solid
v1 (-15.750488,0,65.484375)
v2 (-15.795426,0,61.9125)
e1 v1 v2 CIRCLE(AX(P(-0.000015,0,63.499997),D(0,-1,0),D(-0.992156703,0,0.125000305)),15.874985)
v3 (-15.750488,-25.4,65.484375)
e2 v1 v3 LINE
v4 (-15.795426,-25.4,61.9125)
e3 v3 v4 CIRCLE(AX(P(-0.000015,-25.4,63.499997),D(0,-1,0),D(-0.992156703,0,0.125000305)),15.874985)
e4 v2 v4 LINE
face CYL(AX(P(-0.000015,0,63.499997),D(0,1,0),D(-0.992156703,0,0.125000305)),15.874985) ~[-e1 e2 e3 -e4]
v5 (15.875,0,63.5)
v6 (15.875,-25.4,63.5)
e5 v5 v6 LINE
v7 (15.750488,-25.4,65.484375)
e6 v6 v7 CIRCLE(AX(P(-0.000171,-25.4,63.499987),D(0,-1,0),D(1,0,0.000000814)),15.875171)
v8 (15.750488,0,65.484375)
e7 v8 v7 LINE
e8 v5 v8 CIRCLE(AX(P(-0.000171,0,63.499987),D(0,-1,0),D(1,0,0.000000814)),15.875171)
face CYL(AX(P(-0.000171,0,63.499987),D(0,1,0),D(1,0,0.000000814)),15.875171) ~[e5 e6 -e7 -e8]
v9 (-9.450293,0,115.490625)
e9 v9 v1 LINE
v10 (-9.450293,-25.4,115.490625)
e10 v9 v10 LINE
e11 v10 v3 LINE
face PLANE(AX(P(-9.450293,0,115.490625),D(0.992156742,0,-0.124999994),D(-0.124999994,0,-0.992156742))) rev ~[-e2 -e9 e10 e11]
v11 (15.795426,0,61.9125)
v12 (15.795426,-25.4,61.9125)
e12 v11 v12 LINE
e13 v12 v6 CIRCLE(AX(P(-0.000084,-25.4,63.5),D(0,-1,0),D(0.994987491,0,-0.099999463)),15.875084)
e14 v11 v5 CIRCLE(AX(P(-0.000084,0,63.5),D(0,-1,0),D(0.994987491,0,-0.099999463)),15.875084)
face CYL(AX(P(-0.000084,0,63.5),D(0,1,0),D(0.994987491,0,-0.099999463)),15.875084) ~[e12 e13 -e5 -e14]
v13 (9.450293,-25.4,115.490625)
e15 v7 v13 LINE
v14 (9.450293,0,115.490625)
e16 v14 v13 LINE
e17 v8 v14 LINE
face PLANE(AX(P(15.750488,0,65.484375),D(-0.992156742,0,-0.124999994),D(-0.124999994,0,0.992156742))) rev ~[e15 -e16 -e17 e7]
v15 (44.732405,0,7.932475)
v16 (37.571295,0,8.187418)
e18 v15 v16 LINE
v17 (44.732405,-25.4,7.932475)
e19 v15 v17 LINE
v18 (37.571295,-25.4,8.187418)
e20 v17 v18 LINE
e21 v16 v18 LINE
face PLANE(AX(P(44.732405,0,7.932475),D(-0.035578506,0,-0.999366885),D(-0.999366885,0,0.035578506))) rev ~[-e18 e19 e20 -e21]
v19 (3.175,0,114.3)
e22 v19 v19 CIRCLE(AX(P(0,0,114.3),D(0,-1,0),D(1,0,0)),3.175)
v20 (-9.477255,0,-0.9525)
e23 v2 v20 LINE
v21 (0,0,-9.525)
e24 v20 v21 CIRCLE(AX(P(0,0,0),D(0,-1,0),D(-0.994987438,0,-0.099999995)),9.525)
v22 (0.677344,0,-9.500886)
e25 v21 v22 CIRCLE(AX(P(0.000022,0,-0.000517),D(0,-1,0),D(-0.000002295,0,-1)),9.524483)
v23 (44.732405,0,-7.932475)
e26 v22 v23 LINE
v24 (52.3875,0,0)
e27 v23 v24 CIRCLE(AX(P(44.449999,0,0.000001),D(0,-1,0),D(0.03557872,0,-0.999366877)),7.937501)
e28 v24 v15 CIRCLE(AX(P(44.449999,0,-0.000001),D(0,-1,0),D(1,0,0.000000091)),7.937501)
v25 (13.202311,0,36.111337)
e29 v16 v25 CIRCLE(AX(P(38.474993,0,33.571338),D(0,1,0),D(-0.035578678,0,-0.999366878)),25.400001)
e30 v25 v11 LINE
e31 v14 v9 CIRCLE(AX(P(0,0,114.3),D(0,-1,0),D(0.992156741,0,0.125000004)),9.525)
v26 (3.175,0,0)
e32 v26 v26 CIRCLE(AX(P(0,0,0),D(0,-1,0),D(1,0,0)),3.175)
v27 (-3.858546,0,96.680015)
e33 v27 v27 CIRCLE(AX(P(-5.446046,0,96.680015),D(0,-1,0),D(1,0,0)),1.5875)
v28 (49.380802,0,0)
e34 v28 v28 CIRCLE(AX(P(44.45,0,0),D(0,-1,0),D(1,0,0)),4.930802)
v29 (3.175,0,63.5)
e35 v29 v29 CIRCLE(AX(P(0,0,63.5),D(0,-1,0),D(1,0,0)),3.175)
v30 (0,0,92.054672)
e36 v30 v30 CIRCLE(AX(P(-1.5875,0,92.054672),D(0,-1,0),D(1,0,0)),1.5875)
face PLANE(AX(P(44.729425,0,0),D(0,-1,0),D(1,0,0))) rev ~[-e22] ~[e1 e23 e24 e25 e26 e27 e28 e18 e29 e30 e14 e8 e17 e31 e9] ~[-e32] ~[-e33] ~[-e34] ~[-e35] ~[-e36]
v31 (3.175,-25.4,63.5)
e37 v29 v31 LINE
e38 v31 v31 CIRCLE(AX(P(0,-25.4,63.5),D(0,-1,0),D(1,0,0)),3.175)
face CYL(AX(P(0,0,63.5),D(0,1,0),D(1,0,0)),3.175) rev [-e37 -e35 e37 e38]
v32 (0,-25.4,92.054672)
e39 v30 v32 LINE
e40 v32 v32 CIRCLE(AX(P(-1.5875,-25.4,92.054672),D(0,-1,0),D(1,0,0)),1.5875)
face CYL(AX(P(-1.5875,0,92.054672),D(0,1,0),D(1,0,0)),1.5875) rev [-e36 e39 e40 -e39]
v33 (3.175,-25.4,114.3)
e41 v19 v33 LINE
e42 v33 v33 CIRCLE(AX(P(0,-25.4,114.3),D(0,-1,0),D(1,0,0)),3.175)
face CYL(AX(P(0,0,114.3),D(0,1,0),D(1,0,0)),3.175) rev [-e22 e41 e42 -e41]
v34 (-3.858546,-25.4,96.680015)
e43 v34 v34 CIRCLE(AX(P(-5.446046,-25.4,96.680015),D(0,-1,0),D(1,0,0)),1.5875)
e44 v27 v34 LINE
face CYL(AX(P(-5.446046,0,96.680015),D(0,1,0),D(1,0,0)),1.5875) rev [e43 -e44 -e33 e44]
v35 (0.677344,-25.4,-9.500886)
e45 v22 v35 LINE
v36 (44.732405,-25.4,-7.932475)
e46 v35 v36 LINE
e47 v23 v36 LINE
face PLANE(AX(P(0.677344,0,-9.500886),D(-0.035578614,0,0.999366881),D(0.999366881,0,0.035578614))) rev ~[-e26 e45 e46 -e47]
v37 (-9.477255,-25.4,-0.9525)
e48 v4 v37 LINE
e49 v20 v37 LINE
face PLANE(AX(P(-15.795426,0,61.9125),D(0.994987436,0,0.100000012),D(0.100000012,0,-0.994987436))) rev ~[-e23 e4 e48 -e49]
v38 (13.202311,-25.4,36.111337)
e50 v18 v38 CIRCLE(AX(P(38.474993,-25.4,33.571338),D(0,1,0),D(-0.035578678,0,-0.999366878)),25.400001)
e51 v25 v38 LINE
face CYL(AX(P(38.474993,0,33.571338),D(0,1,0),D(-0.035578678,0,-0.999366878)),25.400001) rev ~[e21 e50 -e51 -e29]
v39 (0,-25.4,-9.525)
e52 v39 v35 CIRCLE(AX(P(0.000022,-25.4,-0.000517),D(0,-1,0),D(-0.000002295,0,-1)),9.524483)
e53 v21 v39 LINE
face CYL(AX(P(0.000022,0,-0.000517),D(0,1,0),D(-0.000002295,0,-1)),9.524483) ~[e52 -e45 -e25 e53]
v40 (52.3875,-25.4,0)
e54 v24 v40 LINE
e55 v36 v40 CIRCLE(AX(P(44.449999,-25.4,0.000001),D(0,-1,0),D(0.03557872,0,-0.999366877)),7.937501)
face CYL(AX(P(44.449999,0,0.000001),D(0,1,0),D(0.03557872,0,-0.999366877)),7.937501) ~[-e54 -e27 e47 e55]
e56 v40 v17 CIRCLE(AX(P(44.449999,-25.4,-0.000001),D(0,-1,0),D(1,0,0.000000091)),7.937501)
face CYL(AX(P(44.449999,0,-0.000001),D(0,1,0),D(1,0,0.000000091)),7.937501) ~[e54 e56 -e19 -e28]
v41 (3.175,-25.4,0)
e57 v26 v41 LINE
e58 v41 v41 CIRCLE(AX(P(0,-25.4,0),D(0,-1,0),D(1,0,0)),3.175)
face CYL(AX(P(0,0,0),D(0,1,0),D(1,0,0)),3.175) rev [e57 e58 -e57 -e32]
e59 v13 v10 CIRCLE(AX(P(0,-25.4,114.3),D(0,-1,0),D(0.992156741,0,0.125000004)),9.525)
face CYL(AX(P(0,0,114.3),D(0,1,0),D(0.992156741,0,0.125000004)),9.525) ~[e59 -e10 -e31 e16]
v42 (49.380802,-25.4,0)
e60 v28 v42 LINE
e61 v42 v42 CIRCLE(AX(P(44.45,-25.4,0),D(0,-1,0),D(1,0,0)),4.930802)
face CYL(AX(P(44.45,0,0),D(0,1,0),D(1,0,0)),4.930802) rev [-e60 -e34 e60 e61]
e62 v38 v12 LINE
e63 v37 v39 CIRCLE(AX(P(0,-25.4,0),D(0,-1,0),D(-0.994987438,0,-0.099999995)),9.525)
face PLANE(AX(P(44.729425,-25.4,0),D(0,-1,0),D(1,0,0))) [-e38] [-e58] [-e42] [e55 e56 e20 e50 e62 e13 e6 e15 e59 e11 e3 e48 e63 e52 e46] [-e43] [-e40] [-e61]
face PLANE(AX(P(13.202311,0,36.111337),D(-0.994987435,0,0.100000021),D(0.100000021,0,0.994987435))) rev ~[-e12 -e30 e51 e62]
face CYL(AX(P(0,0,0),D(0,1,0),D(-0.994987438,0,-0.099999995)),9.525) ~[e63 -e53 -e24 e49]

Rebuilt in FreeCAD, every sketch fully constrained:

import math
import FreeCAD as App
import Part
import Sketcher

V = App.Vector
Q = App.Units.Quantity

doc = App.newDocument("Part")
body = doc.addObject("PartDesign::Body", "Body")

sketch1 = body.newObject("Sketcher::SketchObject", "Sketch")
sketch1.AttachmentSupport = (doc.getObject("XZ_Plane"), [""])
sketch1.MapMode = "FlatFace"
sketch1.addGeometry(Part.ArcOfCircle(Part.Circle(V(44.449999, 0.000001, 0), V(0, 0, 1), 7.937501), math.radians(-87.961059), math.radians(-0.000005)), False)
sketch1.addGeometry(Part.ArcOfCircle(Part.Circle(V(44.449999, -0.000001, 0), V(0, 0, 1), 7.937501), math.radians(0.000005), math.radians(87.961059)), False)
sketch1.addGeometry(Part.LineSegment(V(44.732405, 7.932475, 0), V(37.571295, 8.187418, 0)), False)
sketch1.addGeometry(Part.ArcOfCircle(Part.Circle(V(38.474993, 33.571338, 0), V(0, 0, 1), 25.400001), math.radians(174.260832), math.radians(267.961062)), False)
sketch1.addGeometry(Part.LineSegment(V(13.202311, 36.111337, 0), V(15.795426, 61.9125, 0)), False)
sketch1.addGeometry(Part.ArcOfCircle(Part.Circle(V(-0.000084, 63.5, 0), V(0, 0, 1), 15.875084), math.radians(-5.73914), math.radians(0)), False)
sketch1.addGeometry(Part.ArcOfCircle(Part.Circle(V(-0.000171, 63.499987, 0), V(0, 0, 1), 15.875171), math.radians(0.000047), math.radians(7.180725)), False)
sketch1.addGeometry(Part.LineSegment(V(15.750488, 65.484375, 0), V(9.450293, 115.490625, 0)), False)
sketch1.addGeometry(Part.ArcOfCircle(Part.Circle(V(0, 114.3, 0), V(0, 0, 1), 9.525), math.radians(7.180756), math.radians(172.819244)), False)
sketch1.addGeometry(Part.LineSegment(V(-9.450293, 115.490625, 0), V(-15.750488, 65.484375, 0)), False)
sketch1.addGeometry(Part.ArcOfCircle(Part.Circle(V(-0.000015, 63.499997, 0), V(0, 0, 1), 15.874985), math.radians(172.819227), math.radians(185.739165)), False)
sketch1.addGeometry(Part.LineSegment(V(-15.795426, 61.9125, 0), V(-9.477255, -0.9525, 0)), False)
sketch1.addGeometry(Part.ArcOfCircle(Part.Circle(V(0, 0, 0), V(0, 0, 1), 9.525), math.radians(-174.26083), math.radians(-90.000002)), False)
sketch1.addGeometry(Part.ArcOfCircle(Part.Circle(V(0.000022, -0.000517, 0), V(0, 0, 1), 9.524483), math.radians(-90.000132), math.radians(-85.922038)), False)
sketch1.addGeometry(Part.LineSegment(V(0.677344, -9.500886, 0), V(44.732405, -7.932475, 0)), False)
sketch1.addGeometry(Part.Circle(V(0, 0, 0), V(0, 0, 1), 3.175), False)
sketch1.addGeometry(Part.Circle(V(44.45, 0, 0), V(0, 0, 1), 4.930802), False)
sketch1.addGeometry(Part.Circle(V(0, 63.5, 0), V(0, 0, 1), 3.175), False)
sketch1.addGeometry(Part.Circle(V(-1.5875, 92.054672, 0), V(0, 0, 1), 1.5875), False)
sketch1.addGeometry(Part.Circle(V(-5.446046, 96.680015, 0), V(0, 0, 1), 1.5875), False)
sketch1.addGeometry(Part.Circle(V(0, 114.3, 0), V(0, 0, 1), 3.175), False)
sketch1.addConstraint(Sketcher.Constraint("Coincident", 0, 2, 1, 1))
sketch1.addConstraint(Sketcher.Constraint("Coincident", 1, 2, 2, 1))
sketch1.addConstraint(Sketcher.Constraint("Coincident", 2, 2, 3, 2))
sketch1.addConstraint(Sketcher.Constraint("Coincident", 3, 1, 4, 1))
sketch1.addConstraint(Sketcher.Constraint("Coincident", 4, 2, 5, 1))
sketch1.addConstraint(Sketcher.Constraint("Coincident", 5, 2, 6, 1))
sketch1.addConstraint(Sketcher.Constraint("Coincident", 6, 2, 7, 1))
sketch1.addConstraint(Sketcher.Constraint("Coincident", 7, 2, 8, 1))
sketch1.addConstraint(Sketcher.Constraint("Coincident", 8, 2, 9, 1))
sketch1.addConstraint(Sketcher.Constraint("Coincident", 9, 2, 10, 1))
sketch1.addConstraint(Sketcher.Constraint("Coincident", 10, 2, 11, 1))
sketch1.addConstraint(Sketcher.Constraint("Coincident", 11, 2, 12, 1))
sketch1.addConstraint(Sketcher.Constraint("Coincident", 12, 2, 13, 1))
sketch1.addConstraint(Sketcher.Constraint("Coincident", 13, 2, 14, 1))
sketch1.addConstraint(Sketcher.Constraint("Coincident", 14, 2, 0, 1))
sketch1.addConstraint(Sketcher.Constraint("Coincident", 12, 3, -1, 1))
sketch1.addConstraint(Sketcher.Constraint("Coincident", 15, 3, -1, 1))
sketch1.addConstraint(Sketcher.Constraint("Coincident", 1, 3, 0, 3))
sketch1.addConstraint(Sketcher.Constraint("Coincident", 16, 3, 0, 3))
sketch1.addConstraint(Sketcher.Constraint("Coincident", 20, 3, 8, 3))
sketch1.addConstraint(Sketcher.Constraint("PointOnObject", 0, 3, -1))
sketch1.addConstraint(Sketcher.Constraint("PointOnObject", 8, 3, -2))
sketch1.addConstraint(Sketcher.Constraint("PointOnObject", 17, 3, -2))
sketch1.addConstraint(Sketcher.Constraint("PointOnObject", 0, 2, -1))
sketch1.addConstraint(Sketcher.Constraint("PointOnObject", 12, 2, -2))
sketch1.addConstraint(Sketcher.Constraint("Radius", 3, Q("1.0000001 in")))
sketch1.addConstraint(Sketcher.Constraint("Diameter", 15, Q("0.25 in")))
sketch1.addConstraint(Sketcher.Constraint("Diameter", 17, Q("0.25 in")))
sketch1.addConstraint(Sketcher.Constraint("Diameter", 20, Q("0.25 in")))
sketch1.addConstraint(Sketcher.Constraint("Diameter", 18, Q("0.125 in")))
sketch1.addConstraint(Sketcher.Constraint("Diameter", 19, Q("0.125 in")))
sketch1.addConstraint(Sketcher.Constraint("Radius", 0, Q("0.3125 in")))
sketch1.addConstraint(Sketcher.Constraint("Radius", 8, Q("0.375 in")))
sketch1.addConstraint(Sketcher.Constraint("Radius", 12, Q("0.375 in")))
sketch1.addConstraint(Sketcher.Constraint("DistanceY", 5, 3, 8, 3, Q("2 in")))
sketch1.addConstraint(Sketcher.Constraint("DistanceY", 10, 3, 8, 3, Q("2.0000001 in")))
sketch1.addConstraint(Sketcher.Constraint("DistanceY", 17, 3, 8, 3, Q("2 in")))
sketch1.addConstraint(Sketcher.Constraint("DistanceY", -1, 1, 5, 3, Q("2.5 in")))
sketch1.addConstraint(Sketcher.Constraint("DistanceY", -1, 1, 5, 2, Q("2.5 in")))
sketch1.addConstraint(Sketcher.Constraint("DistanceY", 3, 3, 3, 1, Q("0.1 in")))
sketch1.addConstraint(Sketcher.Constraint("DistanceX", -1, 1, 0, 3, Q("1.75 in")))
sketch1.addConstraint(Sketcher.Constraint("DistanceX", 18, 3, -1, 1, Q("0.0625 in")))
sketch1.addConstraint(Sketcher.Constraint("DistanceY", -1, 1, 4, 2, Q("2.4375 in")))
sketch1.addConstraint(Sketcher.Constraint("DistanceX", -1, 1, 5, 2, Q("0.625 in")))
sketch1.addConstraint(Sketcher.Constraint("DistanceY", -1, 1, 6, 2, Q("2.578125 in")))
sketch1.addConstraint(Sketcher.Constraint("DistanceY", -1, 1, 7, 2, Q("4.546875 in")))
sketch1.addConstraint(Sketcher.Constraint("DistanceY", -1, 1, 8, 2, Q("4.546875 in")))
sketch1.addConstraint(Sketcher.Constraint("DistanceY", -1, 1, 9, 2, Q("2.578125 in")))
sketch1.addConstraint(Sketcher.Constraint("DistanceY", -1, 1, 10, 2, Q("2.4375 in")))
sketch1.addConstraint(Sketcher.Constraint("Radius", 6, 15.875171))
sketch1.addConstraint(Sketcher.Constraint("Diameter", 16, 9.861604))
sketch1.addConstraint(Sketcher.Constraint("DistanceY", -1, 1, 19, 3, Q("3.8062998 in")))
sketch1.addConstraint(Sketcher.Constraint("DistanceY", 11, 2, -1, 1, Q("0.0375 in")))
sketch1.addConstraint(Sketcher.Constraint("Radius", 5, 15.875084))
sketch1.addConstraint(Sketcher.Constraint("Radius", 10, 15.874985))
sketch1.addConstraint(Sketcher.Constraint("Radius", 13, 9.524483))
sketch1.addConstraint(Sketcher.Constraint("DistanceY", 10, 3, 18, 3, Q("1.1241998 in")))
sketch1.addConstraint(Sketcher.Constraint("DistanceY", 6, 3, 18, 3, Q("1.1242002 in")))
sketch1.addConstraint(Sketcher.Constraint("DistanceX", 11, 2, 13, 2, 10.154599))
sketch1.addConstraint(Sketcher.Constraint("Distance", 14, 44.082971))
sketch1.addConstraint(Sketcher.Constraint("DistanceY", -1, 1, 3, 3, 33.571338))
sketch1.addConstraint(Sketcher.Constraint("DistanceX", -1, 1, 3, 1, 13.202311))
sketch1.addConstraint(Sketcher.Constraint("DistanceX", 9, 2, -1, 1, 15.750488))
sketch1.addConstraint(Sketcher.Constraint("DistanceX", 13, 3, 3, 3, 38.474972))
sketch1.addConstraint(Sketcher.Constraint("DistanceX", 19, 3, 5, 3, 5.445962))
sketch1.addConstraint(Sketcher.Constraint("DistanceX", 3, 3, 1, 2, 6.257412))
sketch1.addConstraint(Sketcher.Constraint("DistanceX", 2, 2, 1, 2, 7.16111))
pad1 = body.newObject("PartDesign::Pad", "Pad")
pad1.Profile = sketch1
pad1.Length = Q("1 in")

doc.recompute()
